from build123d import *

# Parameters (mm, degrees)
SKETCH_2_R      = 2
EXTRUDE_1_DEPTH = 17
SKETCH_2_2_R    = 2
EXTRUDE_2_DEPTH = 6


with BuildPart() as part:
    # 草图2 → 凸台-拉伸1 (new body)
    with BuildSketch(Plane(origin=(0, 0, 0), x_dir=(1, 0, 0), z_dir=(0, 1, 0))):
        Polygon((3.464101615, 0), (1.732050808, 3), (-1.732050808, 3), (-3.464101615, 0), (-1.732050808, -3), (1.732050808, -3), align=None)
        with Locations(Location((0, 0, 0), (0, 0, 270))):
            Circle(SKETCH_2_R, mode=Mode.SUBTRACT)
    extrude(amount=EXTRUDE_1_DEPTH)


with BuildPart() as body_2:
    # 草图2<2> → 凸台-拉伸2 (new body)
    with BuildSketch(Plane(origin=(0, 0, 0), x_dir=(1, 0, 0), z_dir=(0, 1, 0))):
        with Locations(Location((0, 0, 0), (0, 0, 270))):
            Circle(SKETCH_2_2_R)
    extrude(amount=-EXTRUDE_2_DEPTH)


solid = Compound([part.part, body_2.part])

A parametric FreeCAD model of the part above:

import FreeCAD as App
import Part
import Sketcher

V = App.Vector
Q = App.Units.Quantity

doc = App.newDocument("Part")
body = doc.addObject("PartDesign::Body", "Body")

# Sketch on XZ plane
sketch1 = doc.addObject("Sketcher::SketchObject", "Sketch")
body.addObject(sketch1)
sketch1.AttachmentSupport = (doc.XZ_Plane, [""])
sketch1.MapMode = "FlatFace"
sketch1.addGeometry([
    Part.LineSegment(V(3.5, 0, 0), V(1.7, -3, 0)),  # 0
    Part.LineSegment(V(1.7, -3, 0), V(-1.7, -3, 0)),  # 1
    Part.LineSegment(V(-1.7, -3, 0), V(-3.5, 0, 0)),  # 2
    Part.LineSegment(V(-3.5, 0, 0), V(-1.7, 3, 0)),  # 3
    Part.LineSegment(V(-1.7, 3, 0), V(1.7, 3, 0)),  # 4
    Part.LineSegment(V(1.7, 3, 0), V(3.5, 0, 0)),  # 5
    Part.Circle(V(0, 0, 0), V(0, 0, 1), 2),  # 6
], False)
sketch1.addConstraint([
    Sketcher.Constraint("Coincident", 0, 2, 1, 1),
    Sketcher.Constraint("Coincident", 1, 2, 2, 1),
    Sketcher.Constraint("Coincident", 2, 2, 3, 1),
    Sketcher.Constraint("Coincident", 3, 2, 4, 1),
    Sketcher.Constraint("Coincident", 4, 2, 5, 1),
    Sketcher.Constraint("Coincident", 5, 2, 0, 1),
    Sketcher.Constraint("Horizontal", 1),
    Sketcher.Constraint("Horizontal", 4),
    Sketcher.Constraint("Coincident", 6, 3, -1, 1),
    Sketcher.Constraint("Symmetric", 0, 2, 3, 2, -1, 1),
    Sketcher.Constraint("Symmetric", 2, 2, 5, 2, -1, 1),
    Sketcher.Constraint("PointOnObject", 2, 2, -1),
    Sketcher.Constraint("Parallel", 2, 5),
    Sketcher.Constraint("Vertical", 1, 2, 3, 2),
    Sketcher.Constraint("Diameter", 6, Q("4 mm")),
    Sketcher.Constraint("Angle", 0, Q("-120 deg")),
    Sketcher.Constraint("DistanceY", 0, 2, -1, 1, Q("3 mm")),
    Sketcher.Constraint("DistanceX", 1, 2, 1, 1, Q("3.464102 mm")),
])
pad1 = doc.addObject("PartDesign::Pad", "Pad")
body.addObject(pad1)
pad1.Profile = sketch1
pad1.Length = 17
pad1.Reversed = True
body2 = doc.addObject("PartDesign::Body", "Body001")

# Sketch on XZ plane
sketch2 = doc.addObject("Sketcher::SketchObject", "Sketch001")
body2.addObject(sketch2)
sketch2.AttachmentSupport = (doc.getObject("XZ_Plane001"), [""])
sketch2.MapMode = "FlatFace"
sketch2.addGeometry(Part.Circle(V(0, 0, 0), V(0, 0, 1), 2), False)
sketch2.addConstraint([
    Sketcher.Constraint("Coincident", 0, 3, -1, 1),
    Sketcher.Constraint("Diameter", 0, Q("4 mm")),
])
pad2 = doc.addObject("PartDesign::Pad", "Pad001")
body2.addObject(pad2)
pad2.Profile = sketch2
pad2.Length = 6

doc.recompute()
